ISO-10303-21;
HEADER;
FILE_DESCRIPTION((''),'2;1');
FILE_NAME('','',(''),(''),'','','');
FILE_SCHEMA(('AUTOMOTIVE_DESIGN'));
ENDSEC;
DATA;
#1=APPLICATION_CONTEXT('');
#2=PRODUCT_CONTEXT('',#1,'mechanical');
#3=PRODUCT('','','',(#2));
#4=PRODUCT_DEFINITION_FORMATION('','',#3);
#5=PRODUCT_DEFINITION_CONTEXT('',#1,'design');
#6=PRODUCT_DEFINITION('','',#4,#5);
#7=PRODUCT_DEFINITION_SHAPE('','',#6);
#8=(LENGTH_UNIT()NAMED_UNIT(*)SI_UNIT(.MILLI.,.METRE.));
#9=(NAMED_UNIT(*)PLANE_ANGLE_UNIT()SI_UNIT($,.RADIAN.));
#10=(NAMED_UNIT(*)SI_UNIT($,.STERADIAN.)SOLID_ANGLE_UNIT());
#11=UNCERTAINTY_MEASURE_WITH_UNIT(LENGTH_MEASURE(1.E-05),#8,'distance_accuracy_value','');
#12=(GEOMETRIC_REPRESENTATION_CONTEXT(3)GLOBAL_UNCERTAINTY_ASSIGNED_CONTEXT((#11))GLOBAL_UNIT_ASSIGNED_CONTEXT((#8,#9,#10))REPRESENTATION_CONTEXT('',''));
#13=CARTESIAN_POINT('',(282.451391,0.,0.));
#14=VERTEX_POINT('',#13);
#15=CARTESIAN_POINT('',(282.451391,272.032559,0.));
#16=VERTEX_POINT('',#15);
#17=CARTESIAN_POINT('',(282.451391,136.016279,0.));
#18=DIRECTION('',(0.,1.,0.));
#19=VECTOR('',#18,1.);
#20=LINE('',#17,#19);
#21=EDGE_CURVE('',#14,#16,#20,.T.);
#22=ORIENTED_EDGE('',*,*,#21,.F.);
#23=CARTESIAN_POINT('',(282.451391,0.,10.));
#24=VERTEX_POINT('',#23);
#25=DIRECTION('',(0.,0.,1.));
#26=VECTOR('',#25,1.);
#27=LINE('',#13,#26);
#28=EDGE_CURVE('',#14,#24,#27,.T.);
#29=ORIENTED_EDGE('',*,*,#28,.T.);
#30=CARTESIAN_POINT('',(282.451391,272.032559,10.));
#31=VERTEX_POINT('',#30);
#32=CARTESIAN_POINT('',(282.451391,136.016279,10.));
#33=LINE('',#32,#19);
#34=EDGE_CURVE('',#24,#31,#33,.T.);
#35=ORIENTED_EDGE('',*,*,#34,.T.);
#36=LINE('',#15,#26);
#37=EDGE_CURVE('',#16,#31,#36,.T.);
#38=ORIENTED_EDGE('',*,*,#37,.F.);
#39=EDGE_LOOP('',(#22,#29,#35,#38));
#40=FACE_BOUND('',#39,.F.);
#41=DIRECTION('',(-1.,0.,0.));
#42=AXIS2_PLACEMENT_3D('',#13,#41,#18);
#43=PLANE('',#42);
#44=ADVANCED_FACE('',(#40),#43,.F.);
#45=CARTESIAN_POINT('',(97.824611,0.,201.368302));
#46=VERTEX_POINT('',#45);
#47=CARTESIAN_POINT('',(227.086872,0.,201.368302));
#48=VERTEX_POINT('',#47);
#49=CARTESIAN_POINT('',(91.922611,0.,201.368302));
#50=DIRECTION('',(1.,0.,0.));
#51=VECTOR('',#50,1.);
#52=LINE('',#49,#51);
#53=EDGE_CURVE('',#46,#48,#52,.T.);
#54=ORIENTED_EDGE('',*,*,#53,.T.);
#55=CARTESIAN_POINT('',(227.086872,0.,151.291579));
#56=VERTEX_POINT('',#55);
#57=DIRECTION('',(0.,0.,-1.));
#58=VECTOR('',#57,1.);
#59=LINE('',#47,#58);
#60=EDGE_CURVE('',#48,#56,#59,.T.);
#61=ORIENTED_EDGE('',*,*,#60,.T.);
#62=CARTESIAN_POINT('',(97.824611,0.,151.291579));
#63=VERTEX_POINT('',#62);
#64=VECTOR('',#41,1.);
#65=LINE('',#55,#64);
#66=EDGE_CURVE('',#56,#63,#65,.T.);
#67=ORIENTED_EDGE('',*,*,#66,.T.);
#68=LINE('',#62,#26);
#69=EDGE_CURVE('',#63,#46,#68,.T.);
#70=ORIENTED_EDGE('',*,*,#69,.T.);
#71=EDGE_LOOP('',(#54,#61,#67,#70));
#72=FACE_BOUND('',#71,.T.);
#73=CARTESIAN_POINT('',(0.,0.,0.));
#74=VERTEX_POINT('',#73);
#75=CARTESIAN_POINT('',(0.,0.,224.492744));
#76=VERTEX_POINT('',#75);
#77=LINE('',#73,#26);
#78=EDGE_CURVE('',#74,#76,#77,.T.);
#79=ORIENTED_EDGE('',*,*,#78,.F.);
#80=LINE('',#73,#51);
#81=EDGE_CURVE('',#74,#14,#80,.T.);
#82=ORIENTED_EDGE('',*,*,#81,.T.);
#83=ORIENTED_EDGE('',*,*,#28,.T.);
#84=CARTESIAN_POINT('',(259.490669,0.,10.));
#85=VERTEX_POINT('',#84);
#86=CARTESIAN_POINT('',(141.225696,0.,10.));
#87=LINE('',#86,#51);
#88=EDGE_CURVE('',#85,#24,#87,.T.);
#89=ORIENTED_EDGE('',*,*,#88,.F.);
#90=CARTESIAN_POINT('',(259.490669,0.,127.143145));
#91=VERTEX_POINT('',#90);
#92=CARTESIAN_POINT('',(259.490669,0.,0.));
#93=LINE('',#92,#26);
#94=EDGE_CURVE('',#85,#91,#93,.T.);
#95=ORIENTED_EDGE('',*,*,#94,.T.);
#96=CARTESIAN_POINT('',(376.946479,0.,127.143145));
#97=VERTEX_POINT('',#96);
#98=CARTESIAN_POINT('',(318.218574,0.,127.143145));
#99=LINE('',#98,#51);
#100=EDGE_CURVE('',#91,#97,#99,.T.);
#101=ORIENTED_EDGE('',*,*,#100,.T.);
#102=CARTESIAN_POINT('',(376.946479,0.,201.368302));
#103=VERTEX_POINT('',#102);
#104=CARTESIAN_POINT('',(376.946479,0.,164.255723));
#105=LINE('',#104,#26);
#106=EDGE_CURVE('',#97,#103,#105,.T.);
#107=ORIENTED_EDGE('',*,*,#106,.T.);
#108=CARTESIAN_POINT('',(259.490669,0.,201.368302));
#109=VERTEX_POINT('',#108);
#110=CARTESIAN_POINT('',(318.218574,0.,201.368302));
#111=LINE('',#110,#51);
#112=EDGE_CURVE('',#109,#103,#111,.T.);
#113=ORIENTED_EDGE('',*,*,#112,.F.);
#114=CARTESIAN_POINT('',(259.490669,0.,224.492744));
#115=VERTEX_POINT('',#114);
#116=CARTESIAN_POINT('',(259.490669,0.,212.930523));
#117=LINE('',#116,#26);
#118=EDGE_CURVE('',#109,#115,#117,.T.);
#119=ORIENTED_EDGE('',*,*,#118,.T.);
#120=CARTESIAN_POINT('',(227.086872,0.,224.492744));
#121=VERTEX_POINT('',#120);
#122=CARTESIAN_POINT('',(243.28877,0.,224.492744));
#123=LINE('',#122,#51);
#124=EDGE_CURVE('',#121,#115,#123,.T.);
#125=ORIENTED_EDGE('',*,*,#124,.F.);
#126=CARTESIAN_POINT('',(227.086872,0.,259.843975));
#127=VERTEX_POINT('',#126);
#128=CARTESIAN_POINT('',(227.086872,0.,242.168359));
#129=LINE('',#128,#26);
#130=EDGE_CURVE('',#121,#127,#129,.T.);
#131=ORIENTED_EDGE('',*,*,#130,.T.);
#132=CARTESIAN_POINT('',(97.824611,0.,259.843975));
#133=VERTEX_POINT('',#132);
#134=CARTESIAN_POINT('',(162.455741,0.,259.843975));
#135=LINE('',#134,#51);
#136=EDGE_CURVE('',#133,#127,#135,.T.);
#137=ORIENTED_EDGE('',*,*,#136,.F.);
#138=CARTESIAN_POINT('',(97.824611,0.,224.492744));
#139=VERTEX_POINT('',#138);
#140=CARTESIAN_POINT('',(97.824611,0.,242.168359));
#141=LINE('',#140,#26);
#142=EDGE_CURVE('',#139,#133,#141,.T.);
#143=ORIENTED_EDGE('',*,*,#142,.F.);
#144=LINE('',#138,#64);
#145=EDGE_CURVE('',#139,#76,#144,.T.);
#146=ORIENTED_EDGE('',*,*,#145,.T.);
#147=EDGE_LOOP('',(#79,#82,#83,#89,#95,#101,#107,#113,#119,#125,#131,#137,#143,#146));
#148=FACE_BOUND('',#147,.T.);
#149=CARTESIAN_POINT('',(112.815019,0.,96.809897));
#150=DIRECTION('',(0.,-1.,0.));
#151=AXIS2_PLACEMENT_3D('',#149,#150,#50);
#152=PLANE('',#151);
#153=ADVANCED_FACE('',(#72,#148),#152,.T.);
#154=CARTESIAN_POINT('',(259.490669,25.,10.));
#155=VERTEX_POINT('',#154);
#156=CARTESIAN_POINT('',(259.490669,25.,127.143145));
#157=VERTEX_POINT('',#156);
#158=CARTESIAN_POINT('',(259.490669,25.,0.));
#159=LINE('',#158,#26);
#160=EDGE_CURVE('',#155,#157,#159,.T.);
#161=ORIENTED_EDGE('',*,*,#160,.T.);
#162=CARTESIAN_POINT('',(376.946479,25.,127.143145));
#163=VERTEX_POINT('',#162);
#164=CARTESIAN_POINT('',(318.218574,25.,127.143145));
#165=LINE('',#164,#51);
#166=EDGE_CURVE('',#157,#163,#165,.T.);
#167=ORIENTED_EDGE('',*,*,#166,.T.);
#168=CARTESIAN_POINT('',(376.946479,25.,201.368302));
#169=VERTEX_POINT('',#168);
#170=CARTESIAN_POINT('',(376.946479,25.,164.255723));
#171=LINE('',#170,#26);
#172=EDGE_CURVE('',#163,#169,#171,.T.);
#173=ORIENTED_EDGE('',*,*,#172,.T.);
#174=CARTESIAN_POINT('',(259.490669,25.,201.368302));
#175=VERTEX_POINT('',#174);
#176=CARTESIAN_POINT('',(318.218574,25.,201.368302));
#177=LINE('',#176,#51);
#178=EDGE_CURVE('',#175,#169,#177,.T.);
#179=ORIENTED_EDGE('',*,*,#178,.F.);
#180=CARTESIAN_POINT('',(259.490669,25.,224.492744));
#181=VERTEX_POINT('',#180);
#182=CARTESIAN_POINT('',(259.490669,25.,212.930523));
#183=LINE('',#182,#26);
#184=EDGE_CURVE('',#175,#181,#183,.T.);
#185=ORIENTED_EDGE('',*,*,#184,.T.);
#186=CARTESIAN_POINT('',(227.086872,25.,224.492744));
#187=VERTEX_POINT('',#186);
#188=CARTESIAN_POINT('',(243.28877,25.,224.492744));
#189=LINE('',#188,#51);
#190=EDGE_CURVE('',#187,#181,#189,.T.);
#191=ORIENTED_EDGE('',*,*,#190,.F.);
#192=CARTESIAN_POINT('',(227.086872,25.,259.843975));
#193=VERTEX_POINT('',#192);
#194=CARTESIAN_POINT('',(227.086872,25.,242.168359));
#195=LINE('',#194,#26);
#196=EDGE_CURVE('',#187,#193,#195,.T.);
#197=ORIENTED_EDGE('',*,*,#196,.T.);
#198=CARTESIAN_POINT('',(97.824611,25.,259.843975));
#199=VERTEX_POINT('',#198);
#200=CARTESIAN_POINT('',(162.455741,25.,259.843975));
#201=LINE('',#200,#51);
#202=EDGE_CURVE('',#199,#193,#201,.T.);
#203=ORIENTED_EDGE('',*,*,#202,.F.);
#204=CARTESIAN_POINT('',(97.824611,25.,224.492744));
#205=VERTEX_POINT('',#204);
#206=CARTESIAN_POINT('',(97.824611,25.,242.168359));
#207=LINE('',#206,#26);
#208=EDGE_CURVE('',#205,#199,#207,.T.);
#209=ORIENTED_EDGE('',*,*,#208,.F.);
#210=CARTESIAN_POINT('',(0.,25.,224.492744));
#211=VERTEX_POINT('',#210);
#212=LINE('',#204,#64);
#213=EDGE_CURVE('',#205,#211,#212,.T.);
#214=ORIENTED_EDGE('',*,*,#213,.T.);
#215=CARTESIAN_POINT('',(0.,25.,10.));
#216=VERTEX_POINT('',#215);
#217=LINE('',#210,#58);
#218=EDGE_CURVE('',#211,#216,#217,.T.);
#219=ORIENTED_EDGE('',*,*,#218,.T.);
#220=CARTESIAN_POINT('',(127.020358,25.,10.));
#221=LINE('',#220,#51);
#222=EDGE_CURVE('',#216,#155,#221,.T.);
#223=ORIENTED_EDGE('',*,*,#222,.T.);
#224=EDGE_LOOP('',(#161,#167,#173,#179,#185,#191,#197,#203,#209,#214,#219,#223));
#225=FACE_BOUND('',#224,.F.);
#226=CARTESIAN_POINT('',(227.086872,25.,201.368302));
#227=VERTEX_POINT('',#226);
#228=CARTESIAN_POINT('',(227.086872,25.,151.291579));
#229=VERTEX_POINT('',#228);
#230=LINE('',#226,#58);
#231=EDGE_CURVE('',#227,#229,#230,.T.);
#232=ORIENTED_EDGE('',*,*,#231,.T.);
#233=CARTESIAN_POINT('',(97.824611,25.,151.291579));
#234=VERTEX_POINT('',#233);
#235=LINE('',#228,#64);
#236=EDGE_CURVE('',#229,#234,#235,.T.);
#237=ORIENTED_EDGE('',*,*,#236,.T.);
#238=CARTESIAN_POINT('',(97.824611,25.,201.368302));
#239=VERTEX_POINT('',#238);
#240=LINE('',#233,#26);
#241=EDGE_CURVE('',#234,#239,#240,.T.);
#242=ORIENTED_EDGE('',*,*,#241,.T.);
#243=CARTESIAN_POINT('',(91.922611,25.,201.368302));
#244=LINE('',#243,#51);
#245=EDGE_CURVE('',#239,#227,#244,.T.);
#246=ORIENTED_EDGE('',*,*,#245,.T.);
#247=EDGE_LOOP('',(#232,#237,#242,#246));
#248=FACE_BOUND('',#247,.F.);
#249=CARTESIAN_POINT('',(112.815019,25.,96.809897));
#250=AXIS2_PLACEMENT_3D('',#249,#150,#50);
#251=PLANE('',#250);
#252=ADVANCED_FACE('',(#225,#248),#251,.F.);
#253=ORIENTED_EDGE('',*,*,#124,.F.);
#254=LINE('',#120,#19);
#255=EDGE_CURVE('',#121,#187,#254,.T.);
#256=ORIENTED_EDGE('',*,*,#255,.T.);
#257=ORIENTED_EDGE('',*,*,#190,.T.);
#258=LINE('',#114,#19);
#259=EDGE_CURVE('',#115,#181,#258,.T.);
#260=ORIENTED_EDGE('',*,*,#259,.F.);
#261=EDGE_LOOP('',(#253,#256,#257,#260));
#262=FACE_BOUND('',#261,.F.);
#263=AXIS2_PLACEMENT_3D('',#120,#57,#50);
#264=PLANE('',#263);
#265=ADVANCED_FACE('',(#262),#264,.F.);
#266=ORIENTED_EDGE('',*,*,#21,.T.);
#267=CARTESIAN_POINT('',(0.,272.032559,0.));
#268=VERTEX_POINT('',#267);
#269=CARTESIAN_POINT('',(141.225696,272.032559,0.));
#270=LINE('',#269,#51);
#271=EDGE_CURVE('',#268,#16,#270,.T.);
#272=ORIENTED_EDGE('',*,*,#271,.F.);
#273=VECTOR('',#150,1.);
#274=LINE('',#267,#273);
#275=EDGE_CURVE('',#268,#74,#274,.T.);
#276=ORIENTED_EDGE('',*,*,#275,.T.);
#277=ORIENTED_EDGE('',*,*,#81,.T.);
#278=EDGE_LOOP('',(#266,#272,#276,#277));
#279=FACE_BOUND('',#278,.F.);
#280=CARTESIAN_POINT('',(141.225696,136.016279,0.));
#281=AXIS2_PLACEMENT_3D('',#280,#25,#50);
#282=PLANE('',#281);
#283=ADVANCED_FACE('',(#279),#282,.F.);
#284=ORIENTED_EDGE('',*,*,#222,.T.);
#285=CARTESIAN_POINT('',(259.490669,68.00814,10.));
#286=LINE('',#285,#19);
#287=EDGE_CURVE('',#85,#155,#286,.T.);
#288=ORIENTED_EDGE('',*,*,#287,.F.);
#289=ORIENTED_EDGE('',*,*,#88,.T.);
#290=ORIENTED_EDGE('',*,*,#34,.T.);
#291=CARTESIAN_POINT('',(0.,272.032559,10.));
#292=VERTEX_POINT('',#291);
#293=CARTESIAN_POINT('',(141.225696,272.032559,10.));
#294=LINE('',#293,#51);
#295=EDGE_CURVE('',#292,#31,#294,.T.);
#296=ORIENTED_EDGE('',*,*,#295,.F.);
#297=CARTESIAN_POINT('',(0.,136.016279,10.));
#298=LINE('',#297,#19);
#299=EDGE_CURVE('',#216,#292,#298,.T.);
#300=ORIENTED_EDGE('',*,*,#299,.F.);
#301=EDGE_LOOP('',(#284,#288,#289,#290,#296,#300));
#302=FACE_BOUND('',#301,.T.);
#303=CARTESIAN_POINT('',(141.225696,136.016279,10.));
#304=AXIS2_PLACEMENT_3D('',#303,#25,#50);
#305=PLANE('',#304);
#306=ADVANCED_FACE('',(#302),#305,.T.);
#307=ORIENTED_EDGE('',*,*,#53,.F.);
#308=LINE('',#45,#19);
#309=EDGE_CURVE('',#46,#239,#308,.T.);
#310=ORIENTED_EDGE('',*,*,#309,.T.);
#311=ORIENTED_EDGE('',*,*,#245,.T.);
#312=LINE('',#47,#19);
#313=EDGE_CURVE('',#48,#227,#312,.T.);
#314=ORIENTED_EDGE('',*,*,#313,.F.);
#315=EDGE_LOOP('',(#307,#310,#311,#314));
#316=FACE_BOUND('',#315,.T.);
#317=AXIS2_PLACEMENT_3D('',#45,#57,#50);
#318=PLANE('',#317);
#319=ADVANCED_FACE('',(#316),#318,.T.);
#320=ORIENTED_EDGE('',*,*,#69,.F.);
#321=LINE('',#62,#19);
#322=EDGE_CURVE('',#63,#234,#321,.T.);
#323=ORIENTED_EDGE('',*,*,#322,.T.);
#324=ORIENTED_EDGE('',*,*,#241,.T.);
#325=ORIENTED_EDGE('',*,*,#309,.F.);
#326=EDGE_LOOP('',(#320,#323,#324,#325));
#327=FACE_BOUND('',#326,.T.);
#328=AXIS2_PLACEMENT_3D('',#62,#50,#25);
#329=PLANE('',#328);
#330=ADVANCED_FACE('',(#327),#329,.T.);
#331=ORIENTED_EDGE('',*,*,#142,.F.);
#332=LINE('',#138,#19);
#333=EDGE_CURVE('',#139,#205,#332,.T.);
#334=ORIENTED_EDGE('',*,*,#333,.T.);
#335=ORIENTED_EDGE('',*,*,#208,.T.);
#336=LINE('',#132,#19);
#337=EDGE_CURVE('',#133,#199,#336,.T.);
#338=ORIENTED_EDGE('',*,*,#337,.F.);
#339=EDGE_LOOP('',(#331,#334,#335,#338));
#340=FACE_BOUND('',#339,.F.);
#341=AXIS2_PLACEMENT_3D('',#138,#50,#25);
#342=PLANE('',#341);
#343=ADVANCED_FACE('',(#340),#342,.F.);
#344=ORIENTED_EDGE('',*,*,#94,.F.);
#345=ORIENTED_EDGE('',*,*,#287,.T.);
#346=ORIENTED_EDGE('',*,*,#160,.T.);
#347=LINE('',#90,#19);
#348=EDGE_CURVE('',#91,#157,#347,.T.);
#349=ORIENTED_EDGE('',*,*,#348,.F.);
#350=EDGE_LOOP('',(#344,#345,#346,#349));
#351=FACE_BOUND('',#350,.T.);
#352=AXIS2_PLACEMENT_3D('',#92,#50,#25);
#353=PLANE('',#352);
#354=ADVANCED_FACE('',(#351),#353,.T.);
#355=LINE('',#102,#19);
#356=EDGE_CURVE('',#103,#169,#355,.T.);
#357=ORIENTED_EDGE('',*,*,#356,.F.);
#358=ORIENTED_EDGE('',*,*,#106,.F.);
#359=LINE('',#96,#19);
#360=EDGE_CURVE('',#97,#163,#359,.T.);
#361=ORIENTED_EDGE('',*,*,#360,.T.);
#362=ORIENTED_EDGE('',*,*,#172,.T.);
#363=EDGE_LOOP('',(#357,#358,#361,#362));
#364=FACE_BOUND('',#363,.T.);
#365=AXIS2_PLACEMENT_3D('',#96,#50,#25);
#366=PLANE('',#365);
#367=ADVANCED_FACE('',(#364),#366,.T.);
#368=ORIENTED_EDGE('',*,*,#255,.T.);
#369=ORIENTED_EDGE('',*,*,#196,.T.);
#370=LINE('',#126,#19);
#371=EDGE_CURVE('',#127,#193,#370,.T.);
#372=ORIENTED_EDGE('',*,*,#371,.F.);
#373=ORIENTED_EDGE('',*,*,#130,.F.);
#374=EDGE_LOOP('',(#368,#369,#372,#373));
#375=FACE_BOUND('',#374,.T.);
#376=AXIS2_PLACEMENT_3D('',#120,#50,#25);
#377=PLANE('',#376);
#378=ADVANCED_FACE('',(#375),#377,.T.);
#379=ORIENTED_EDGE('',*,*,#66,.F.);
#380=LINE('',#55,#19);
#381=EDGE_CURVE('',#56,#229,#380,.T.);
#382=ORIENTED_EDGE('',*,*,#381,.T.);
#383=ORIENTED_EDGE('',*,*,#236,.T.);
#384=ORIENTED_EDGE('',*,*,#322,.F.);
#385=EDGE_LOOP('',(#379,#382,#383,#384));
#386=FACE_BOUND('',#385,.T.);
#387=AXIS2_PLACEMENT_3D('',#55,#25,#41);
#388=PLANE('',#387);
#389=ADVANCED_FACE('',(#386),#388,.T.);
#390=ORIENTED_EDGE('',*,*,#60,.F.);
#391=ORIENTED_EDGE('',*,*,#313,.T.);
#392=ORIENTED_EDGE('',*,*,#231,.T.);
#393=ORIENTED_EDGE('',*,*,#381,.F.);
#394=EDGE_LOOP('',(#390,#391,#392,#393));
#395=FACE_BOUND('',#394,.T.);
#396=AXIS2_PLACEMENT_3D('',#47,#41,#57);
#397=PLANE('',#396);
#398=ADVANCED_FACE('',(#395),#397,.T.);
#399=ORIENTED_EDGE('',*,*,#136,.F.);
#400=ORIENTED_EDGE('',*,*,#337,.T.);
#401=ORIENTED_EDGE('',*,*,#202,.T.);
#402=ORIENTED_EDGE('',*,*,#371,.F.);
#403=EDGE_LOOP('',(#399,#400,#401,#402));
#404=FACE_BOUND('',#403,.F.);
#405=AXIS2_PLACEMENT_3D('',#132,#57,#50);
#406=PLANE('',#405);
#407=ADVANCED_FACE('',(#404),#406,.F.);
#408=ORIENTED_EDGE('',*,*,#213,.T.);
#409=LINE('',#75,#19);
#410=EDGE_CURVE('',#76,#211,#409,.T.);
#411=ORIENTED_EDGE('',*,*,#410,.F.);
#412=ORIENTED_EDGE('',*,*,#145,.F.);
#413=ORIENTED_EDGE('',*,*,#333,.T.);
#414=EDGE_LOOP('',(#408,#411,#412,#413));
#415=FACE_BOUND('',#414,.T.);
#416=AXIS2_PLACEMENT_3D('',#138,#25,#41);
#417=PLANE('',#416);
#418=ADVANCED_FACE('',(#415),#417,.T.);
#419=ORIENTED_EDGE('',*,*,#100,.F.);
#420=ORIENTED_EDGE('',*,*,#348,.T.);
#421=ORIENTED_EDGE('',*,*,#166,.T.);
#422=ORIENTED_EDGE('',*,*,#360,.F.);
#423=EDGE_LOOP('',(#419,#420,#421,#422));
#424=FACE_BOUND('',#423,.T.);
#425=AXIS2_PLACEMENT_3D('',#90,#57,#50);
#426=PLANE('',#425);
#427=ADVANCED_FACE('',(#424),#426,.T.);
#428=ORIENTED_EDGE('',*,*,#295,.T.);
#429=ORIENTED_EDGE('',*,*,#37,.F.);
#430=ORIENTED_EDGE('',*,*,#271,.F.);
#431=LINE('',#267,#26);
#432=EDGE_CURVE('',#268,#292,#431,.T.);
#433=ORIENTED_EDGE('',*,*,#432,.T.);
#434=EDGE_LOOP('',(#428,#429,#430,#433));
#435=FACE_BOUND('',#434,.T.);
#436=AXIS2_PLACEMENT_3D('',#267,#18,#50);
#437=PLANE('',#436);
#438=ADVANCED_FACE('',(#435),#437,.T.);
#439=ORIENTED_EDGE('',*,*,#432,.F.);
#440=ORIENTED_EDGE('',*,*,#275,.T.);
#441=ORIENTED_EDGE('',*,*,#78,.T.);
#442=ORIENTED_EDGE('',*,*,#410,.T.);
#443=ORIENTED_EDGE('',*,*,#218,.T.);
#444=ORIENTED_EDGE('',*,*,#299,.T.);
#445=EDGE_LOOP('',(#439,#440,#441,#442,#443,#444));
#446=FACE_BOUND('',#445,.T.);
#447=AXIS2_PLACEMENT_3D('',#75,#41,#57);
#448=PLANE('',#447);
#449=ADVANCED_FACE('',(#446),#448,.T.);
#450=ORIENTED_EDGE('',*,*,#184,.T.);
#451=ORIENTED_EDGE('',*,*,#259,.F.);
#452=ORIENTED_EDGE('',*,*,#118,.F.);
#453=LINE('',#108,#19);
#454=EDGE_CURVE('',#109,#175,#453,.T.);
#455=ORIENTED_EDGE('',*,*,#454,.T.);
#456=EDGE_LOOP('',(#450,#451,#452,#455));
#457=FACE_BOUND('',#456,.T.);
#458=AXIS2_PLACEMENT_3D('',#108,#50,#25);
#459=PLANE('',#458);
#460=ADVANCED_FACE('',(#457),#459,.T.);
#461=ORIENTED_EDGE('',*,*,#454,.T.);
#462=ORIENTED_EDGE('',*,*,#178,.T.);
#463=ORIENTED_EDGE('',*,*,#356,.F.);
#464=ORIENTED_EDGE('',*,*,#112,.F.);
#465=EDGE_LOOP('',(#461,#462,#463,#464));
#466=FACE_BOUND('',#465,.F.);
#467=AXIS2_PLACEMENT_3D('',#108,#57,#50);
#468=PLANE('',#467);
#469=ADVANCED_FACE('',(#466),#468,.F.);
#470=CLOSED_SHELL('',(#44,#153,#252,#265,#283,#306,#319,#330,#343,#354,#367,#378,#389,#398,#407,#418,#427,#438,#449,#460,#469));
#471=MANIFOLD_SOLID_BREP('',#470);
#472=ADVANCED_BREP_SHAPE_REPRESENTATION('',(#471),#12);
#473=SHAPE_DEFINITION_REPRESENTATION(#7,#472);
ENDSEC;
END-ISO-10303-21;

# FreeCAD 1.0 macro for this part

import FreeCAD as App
import Part
import Sketcher

V = App.Vector

doc = App.newDocument("Part")
body = doc.addObject("PartDesign::Body", "Body")

# Sketch on XY plane
sketch1 = doc.addObject("Sketcher::SketchObject", "Sketch")
body.addObject(sketch1)
sketch1.AttachmentSupport = (doc.XY_Plane, [""])
sketch1.MapMode = "FlatFace"
sketch1.addGeometry([
    Part.LineSegment(V(0, 272, 0), V(0, 0, 0)),
    Part.LineSegment(V(0, 0, 0), V(282, 0, 0)),
    Part.LineSegment(V(282, 0, 0), V(282, 272, 0)),
    Part.LineSegment(V(282, 272, 0), V(0, 272, 0)),
], False)
sketch1.addConstraint([
    Sketcher.Constraint("Coincident", 0, 2, 1, 1),
    Sketcher.Constraint("Coincident", 1, 2, 2, 1),
    Sketcher.Constraint("Coincident", 2, 2, 3, 1),
    Sketcher.Constraint("Coincident", 3, 2, 0, 1),
    Sketcher.Constraint("Vertical", 0),
    Sketcher.Constraint("Horizontal", 1),
    Sketcher.Constraint("Vertical", 2),
    Sketcher.Constraint("Horizontal", 3),
    Sketcher.Constraint("Coincident", 0, 2, -1, 1),
    Sketcher.Constraint("DistanceX", 1, 1, 1, 2, 282.451391),
    Sketcher.Constraint("DistanceY", 0, 2, 0, 1, 272.032559),
])
pad1 = doc.addObject("PartDesign::Pad", "Pad")
body.addObject(pad1)
pad1.Profile = sketch1
pad1.Length = 10

# Sketch on XZ plane
sketch2 = doc.addObject("Sketcher::SketchObject", "Sketch001")
body.addObject(sketch2)
sketch2.AttachmentSupport = (doc.XZ_Plane, [""])
sketch2.MapMode = "FlatFace"
sketch2.addGeometry([
    Part.LineSegment(V(0, 224, 0), V(0, 0, 0)),  # 0
    Part.LineSegment(V(0, 0, 0), V(259, 0, 0)),  # 1
    Part.LineSegment(V(259, 0, 0), V(259, 127, 0)),  # 2
    Part.LineSegment(V(259, 127, 0), V(377, 127, 0)),  # 3
    Part.LineSegment(V(377, 127, 0), V(377, 201, 0)),  # 4
    Part.LineSegment(V(377, 201, 0), V(259, 201, 0)),  # 5
    Part.LineSegment(V(259, 201, 0), V(259, 224, 0)),  # 6
    Part.LineSegment(V(259, 224, 0), V(227, 224, 0)),  # 7
    Part.LineSegment(V(227, 224, 0), V(227, 260, 0)),  # 8
    Part.LineSegment(V(227, 260, 0), V(98, 260, 0)),  # 9
    Part.LineSegment(V(98, 260, 0), V(98, 224, 0)),  # 10
    Part.LineSegment(V(98, 224, 0), V(0, 224, 0)),  # 11
    Part.LineSegment(V(98, 201, 0), V(227, 201, 0)),  # 12
    Part.LineSegment(V(227, 201, 0), V(227, 151, 0)),  # 13
    Part.LineSegment(V(227, 151, 0), V(98, 151, 0)),  # 14
    Part.LineSegment(V(98, 151, 0), V(98, 201, 0)),  # 15
], False)
sketch2.addConstraint([
    Sketcher.Constraint("Coincident", 0, 2, 1, 1),
    Sketcher.Constraint("Coincident", 1, 2, 2, 1),
    Sketcher.Constraint("Coincident", 2, 2, 3, 1),
    Sketcher.Constraint("Coincident", 3, 2, 4, 1),
    Sketcher.Constraint("Coincident", 4, 2, 5, 1),
    Sketcher.Constraint("Coincident", 5, 2, 6, 1),
    Sketcher.Constraint("Coincident", 6, 2, 7, 1),
    Sketcher.Constraint("Coincident", 7, 2, 8, 1),
    Sketcher.Constraint("Coincident", 8, 2, 9, 1),
    Sketcher.Constraint("Coincident", 9, 2, 10, 1),
    Sketcher.Constraint("Coincident", 10, 2, 11, 1),
    Sketcher.Constraint("Coincident", 11, 2, 0, 1),
    Sketcher.Constraint("Coincident", 12, 2, 13, 1),
    Sketcher.Constraint("Coincident", 13, 2, 14, 1),
    Sketcher.Constraint("Coincident", 14, 2, 15, 1),
    Sketcher.Constraint("Coincident", 15, 2, 12, 1),
    Sketcher.Constraint("Vertical", 0),
    Sketcher.Constraint("Horizontal", 1),
    Sketcher.Constraint("Vertical", 2),
    Sketcher.Constraint("Horizontal", 3),
    Sketcher.Constraint("Vertical", 4),
    Sketcher.Constraint("Horizontal", 5),
    Sketcher.Constraint("Vertical", 6),
    Sketcher.Constraint("Horizontal", 7),
    Sketcher.Constraint("Vertical", 8),
    Sketcher.Constraint("Horizontal", 9),
    Sketcher.Constraint("Vertical", 10),
    Sketcher.Constraint("Horizontal", 11),
    Sketcher.Constraint("Horizontal", 12),
    Sketcher.Constraint("Vertical", 13),
    Sketcher.Constraint("Horizontal", 14),
    Sketcher.Constraint("Vertical", 15),
    Sketcher.Constraint("Coincident", 0, 2, -1, 1),
    Sketcher.Constraint("Horizontal", 7, 2, 10, 2),
    Sketcher.Constraint("Horizontal", 5, 2, 12, 2),
    Sketcher.Constraint("Vertical", 2, 2, 5, 2),
    Sketcher.Constraint("Vertical", 8, 2, 12, 2),
    Sketcher.Constraint("Vertical", 10, 2, 14, 2),
    Sketcher.Constraint("DistanceX", 1, 1, 1, 2, 259.490669),
    Sketcher.Constraint("DistanceX", 3, 1, 3, 2, 117.45581),
    Sketcher.Constraint("DistanceX", 9, 2, 9, 1, 129.262261),
    Sketcher.Constraint("DistanceX", 11, 2, 11, 1, 97.824611),
    Sketcher.Constraint("DistanceY", 6, 1, 6, 2, 23.124442),
    Sketcher.Constraint("DistanceY", 8, 1, 8, 2, 35.351232),
    Sketcher.Constraint("DistanceY", 2, 2, 6, 2, 97.349599),
    Sketcher.Constraint("DistanceY", 0, 2, 0, 1, 224.492744),
    Sketcher.Constraint("DistanceY", 13, 2, 13, 1, 50.076723),
])
pad2 = doc.addObject("PartDesign::Pad", "Pad001")
body.addObject(pad2)
pad2.Profile = sketch2
pad2.Length = 25
pad2.Reversed = True

doc.recompute()
